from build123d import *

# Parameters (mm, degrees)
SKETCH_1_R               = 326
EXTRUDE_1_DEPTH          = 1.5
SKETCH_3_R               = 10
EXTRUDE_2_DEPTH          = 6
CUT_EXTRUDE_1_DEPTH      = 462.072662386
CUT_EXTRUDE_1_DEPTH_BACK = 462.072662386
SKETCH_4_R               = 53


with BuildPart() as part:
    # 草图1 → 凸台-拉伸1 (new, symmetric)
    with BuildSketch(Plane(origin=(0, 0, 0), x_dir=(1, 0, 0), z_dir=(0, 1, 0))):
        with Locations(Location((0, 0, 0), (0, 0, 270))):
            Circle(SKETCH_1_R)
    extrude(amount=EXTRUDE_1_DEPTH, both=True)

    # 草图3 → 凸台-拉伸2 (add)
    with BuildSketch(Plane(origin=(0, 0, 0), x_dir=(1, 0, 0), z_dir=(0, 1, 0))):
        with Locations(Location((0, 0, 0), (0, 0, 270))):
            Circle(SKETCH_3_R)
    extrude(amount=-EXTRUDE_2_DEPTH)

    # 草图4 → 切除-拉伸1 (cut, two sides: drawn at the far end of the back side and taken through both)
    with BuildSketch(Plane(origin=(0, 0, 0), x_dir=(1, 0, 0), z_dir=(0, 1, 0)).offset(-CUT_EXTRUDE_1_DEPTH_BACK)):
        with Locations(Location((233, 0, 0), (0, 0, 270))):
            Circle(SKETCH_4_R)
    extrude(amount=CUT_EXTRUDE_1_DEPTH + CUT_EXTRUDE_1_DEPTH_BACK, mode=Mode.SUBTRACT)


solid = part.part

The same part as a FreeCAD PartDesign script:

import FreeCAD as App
import Part
import Sketcher

V = App.Vector

doc = App.newDocument("Part")
body = doc.addObject("PartDesign::Body", "Body")

# Sketch on XZ plane
sketch1 = doc.addObject("Sketcher::SketchObject", "Sketch")
body.addObject(sketch1)
sketch1.AttachmentSupport = (doc.XZ_Plane, [""])
sketch1.MapMode = "FlatFace"
sketch1.addGeometry(Part.Circle(V(0, 0, 0), V(0, 0, 1), 326), False)
sketch1.addConstraint(Sketcher.Constraint("Coincident", 0, 3, -1, 1))
sketch1.addConstraint(Sketcher.Constraint("Diameter", 0, 652.0))
pad1 = doc.addObject("PartDesign::Pad", "Pad")
body.addObject(pad1)
pad1.Profile = sketch1
pad1.Length = 3
pad1.Midplane = True

# Sketch on XZ plane
sketch2 = doc.addObject("Sketcher::SketchObject", "Sketch001")
body.addObject(sketch2)
sketch2.AttachmentSupport = (doc.XZ_Plane, [""])
sketch2.MapMode = "FlatFace"
sketch2.addGeometry(Part.Circle(V(0, 0, 0), V(0, 0, 1), 10), False)
sketch2.addConstraint(Sketcher.Constraint("Coincident", 0, 3, -1, 1))
sketch2.addConstraint(Sketcher.Constraint("Diameter", 0, 20.0))
pad2 = doc.addObject("PartDesign::Pad", "Pad001")
body.addObject(pad2)
pad2.Profile = sketch2
pad2.Length = 6

# Sketch on XZ plane
sketch3 = doc.addObject("Sketcher::SketchObject", "Sketch002")
body.addObject(sketch3)
sketch3.AttachmentSupport = (doc.XZ_Plane, [""])
sketch3.MapMode = "FlatFace"
sketch3.addGeometry(Part.Circle(V(233, 0, 0), V(0, 0, 1), 53), False)
sketch3.addConstraint(Sketcher.Constraint("PointOnObject", 0, 3, -1))
sketch3.addConstraint(Sketcher.Constraint("Diameter", 0, 106.0))
sketch3.addConstraint(Sketcher.Constraint("DistanceX", -1, 1, 0, 3, 233.0))
pocket1 = doc.addObject("PartDesign::Pocket", "Pocket")
body.addObject(pocket1)
pocket1.Profile = sketch3
pocket1.Type = "ThroughAll"
pocket1.Midplane = True

doc.recompute()
